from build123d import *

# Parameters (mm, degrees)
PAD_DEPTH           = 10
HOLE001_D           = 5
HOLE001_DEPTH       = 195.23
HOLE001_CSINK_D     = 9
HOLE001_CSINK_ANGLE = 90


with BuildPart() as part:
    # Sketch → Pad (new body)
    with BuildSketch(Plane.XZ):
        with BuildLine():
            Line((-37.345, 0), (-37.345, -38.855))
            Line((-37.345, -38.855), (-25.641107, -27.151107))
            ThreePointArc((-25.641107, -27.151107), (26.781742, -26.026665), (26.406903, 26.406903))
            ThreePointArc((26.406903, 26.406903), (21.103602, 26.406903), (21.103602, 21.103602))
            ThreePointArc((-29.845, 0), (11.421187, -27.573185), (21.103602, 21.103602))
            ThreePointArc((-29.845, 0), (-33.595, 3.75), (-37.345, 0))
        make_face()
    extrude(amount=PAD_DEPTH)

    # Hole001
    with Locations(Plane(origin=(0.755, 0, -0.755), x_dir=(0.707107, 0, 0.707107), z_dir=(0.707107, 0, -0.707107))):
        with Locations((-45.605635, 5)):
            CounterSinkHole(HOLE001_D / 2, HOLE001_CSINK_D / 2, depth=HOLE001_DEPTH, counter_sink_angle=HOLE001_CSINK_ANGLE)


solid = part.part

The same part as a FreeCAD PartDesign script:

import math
import FreeCAD as App
import Part
import Sketcher
from FreeCAD import Vector
Q = App.Units.Quantity

doc = App.newDocument("Part")
body = doc.addObject("PartDesign::Body", "Body")

sketch1 = doc.addObject("Sketcher::SketchObject", "Sketch")
body.addObject(sketch1)
sketch1.AttachmentSupport = (doc.XZ_Plane, [""])
sketch1.MapMode = "FlatFace"
sketch1.addGeometry([
    Part.LineSegment(Vector(-37.3, 0, 0), Vector(-37.3, -38.9, 0)),
    Part.LineSegment(Vector(-37.3, -38.9, 0), Vector(-25.6, -27.2, 0)),
    Part.ArcOfCircle(Part.Circle(Vector(0, 0, 0), Vector(0, 0, 1), 37.3), math.radians(-133), math.radians(45)),
    Part.ArcOfCircle(Part.Circle(Vector(23.8, 23.8, 0), Vector(0, 0, 1), 3.8), math.radians(45), math.radians(225)),
    Part.ArcOfCircle(Part.Circle(Vector(0, 0, 0), Vector(0, 0, 1), 29.8), math.radians(180), math.radians(405)),
    Part.ArcOfCircle(Part.Circle(Vector(-33.6, 0, 0), Vector(0, 0, 1), 3.8), math.radians(0), math.radians(180)),
], False)
sketch1.addConstraint([
    Sketcher.Constraint("Coincident", 0, 2, 1, 1),
    Sketcher.Constraint("Coincident", 1, 2, 2, 1),
    Sketcher.Constraint("Tangent", 2, 2, 3, 1),
    Sketcher.Constraint("Tangent", 3, 2, 4, 2),
    Sketcher.Constraint("Tangent", 4, 1, 5, 1),
    Sketcher.Constraint("Tangent", 5, 2, 0, 1),
    Sketcher.Constraint("Vertical", 0),
    Sketcher.Constraint("Coincident", 2, 3, -1, 1),
    Sketcher.Constraint("Coincident", 4, 3, -1, 1),
    Sketcher.Constraint("Equal", 3, 5),
    Sketcher.Constraint("PointOnObject", 5, 3, -1),
    Sketcher.Constraint("Angle", 1, Q("45 deg")),
    Sketcher.Constraint("Radius", 3, 3.75),
    Sketcher.Constraint("Radius", 2, 37.345),
    Sketcher.Constraint("DistanceY", 0, 2, 0, 1, 38.855),
    Sketcher.Constraint("DistanceX", -1, 1, 3, 2, 21.103602),
])
pad1 = doc.addObject("PartDesign::Pad", "Pad")
body.addObject(pad1)
pad1.Profile = sketch1
pad1.Length = 10

sketch2 = doc.addObject("Sketcher::SketchObject", "Sketch001")
body.addObject(sketch2)
sketch2.Placement = App.Placement(Vector(0.755, 0, -0.755), App.Rotation(Vector(0.707106781, 0, 0.707106781), Vector(0, -0.999999999, 0), Vector(0.707106781, 0, -0.707106781), "ZXY"))
sketch2.addGeometry(Part.Circle(Vector(-45.6, 5, 0), Vector(0, 0, 1), 2.5), False)
sketch2.addConstraint([
    Sketcher.Constraint("Diameter", 0, 5.0),
    Sketcher.Constraint("DistanceY", -1, 1, 0, 3, 5.0),
    Sketcher.Constraint("DistanceX", 0, 3, -1, 1, 45.605635),
])
doc.recompute()
hole = doc.addObject("PartDesign::Hole", "Hole")
body.addObject(hole)
hole.Profile = sketch2
hole.ThreadType = "None"
hole.Diameter = 5
hole.DepthType = "Dimension"
hole.Depth = 195.23
hole.DrillPoint = "Flat"
hole.HoleCutType = "Countersink"
hole.HoleCutDiameter = 9
hole.HoleCutCountersinkAngle = 90

doc.recompute()
